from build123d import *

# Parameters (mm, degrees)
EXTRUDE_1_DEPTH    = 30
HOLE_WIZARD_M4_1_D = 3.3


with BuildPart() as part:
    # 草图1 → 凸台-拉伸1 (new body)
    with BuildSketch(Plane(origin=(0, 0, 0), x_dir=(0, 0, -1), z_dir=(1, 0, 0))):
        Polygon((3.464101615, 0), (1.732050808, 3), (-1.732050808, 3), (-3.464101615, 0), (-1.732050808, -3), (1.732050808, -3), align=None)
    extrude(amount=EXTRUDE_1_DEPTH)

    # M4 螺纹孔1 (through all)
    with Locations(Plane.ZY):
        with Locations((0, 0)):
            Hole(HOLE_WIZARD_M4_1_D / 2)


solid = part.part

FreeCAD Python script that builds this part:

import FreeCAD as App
import Part
import Sketcher
from FreeCAD import Vector
Q = App.Units.Quantity


def add_polygon(sketch, points):
    """Adds a closed chain of lines whose ends are joined by coincident constraints."""
    first, n = sketch.GeometryCount, len(points)
    for a, b in zip(points, points[1:] + points[:1]):
        sketch.addGeometry(Part.LineSegment(App.Vector(*a, 0), App.Vector(*b, 0)), False)
    for i in range(n):
        sketch.addConstraint(Sketcher.Constraint("Coincident", first + i, 2, first + (i + 1) % n, 1))

doc = App.newDocument("Part")
params = doc.addObject("Spreadsheet::Sheet", "Params")
for row, (alias, value) in enumerate([
    ("pad1_length", "30 mm"),
    ("sketch2_diameter", "3.3 mm"),
    ("hole_diameter", "3.3 mm"),
], start=1):
    params.set(f"A{row}", alias)
    params.set(f"B{row}", "=" + value)
    params.setAlias(f"B{row}", alias)

body = doc.addObject("PartDesign::Body", "Body")

sketch1 = doc.addObject("Sketcher::SketchObject", "Sketch")
body.addObject(sketch1)
sketch1.AttachmentSupport = (doc.YZ_Plane, [""])
sketch1.MapMode = "FlatFace"
add_polygon(sketch1, [(0, -3.5), (3, -1.7), (3, 1.7), (0, 3.5), (-3, 1.7), (-3, -1.7)])
sketch1.addConstraint([
    Sketcher.Constraint("Vertical", 1),
    Sketcher.Constraint("Vertical", 4),
    Sketcher.Constraint("Symmetric", 0, 2, 3, 2, -1, 1),
    Sketcher.Constraint("Symmetric", 2, 2, 5, 2, -1, 1),
    Sketcher.Constraint("PointOnObject", 2, 2, -2),
    Sketcher.Constraint("Parallel", 2, 5),
    Sketcher.Constraint("Horizontal", 1, 2, 3, 2),
    Sketcher.Constraint("Angle", 0, Q("30 deg")),
    Sketcher.Constraint("DistanceX", -1, 1, 0, 2, Q("3 mm")),
    Sketcher.Constraint("DistanceY", 1, 1, 1, 2, Q("3.464102 mm")),
])
pad1 = doc.addObject("PartDesign::Pad", "Pad")
body.addObject(pad1)
pad1.Profile = sketch1
pad1.setExpression("Length", "Params.pad1_length")

sketch2 = doc.addObject("Sketcher::SketchObject", "Sketch001")
body.addObject(sketch2)
sketch2.AttachmentSupport = (doc.YZ_Plane, [""])
sketch2.MapMode = "FlatFace"
sketch2.addGeometry(Part.Circle(Vector(0, 0, 0), Vector(0, 0, 1), 1.6), False)
sketch2.addConstraint([
    Sketcher.Constraint("Coincident", 0, 3, -1, 1),
    Sketcher.Constraint("Diameter", 0, Q("3.3 mm")),
])
sketch2.setExpression("Constraints[1]", "Params.sketch2_diameter")
doc.recompute()
hole = doc.addObject("PartDesign::Hole", "Hole")
body.addObject(hole)
hole.Profile = sketch2
hole.ThreadType = "None"
hole.setExpression("Diameter", "Params.hole_diameter")
hole.DepthType = "ThroughAll"
hole.Reversed = True

doc.recompute()
